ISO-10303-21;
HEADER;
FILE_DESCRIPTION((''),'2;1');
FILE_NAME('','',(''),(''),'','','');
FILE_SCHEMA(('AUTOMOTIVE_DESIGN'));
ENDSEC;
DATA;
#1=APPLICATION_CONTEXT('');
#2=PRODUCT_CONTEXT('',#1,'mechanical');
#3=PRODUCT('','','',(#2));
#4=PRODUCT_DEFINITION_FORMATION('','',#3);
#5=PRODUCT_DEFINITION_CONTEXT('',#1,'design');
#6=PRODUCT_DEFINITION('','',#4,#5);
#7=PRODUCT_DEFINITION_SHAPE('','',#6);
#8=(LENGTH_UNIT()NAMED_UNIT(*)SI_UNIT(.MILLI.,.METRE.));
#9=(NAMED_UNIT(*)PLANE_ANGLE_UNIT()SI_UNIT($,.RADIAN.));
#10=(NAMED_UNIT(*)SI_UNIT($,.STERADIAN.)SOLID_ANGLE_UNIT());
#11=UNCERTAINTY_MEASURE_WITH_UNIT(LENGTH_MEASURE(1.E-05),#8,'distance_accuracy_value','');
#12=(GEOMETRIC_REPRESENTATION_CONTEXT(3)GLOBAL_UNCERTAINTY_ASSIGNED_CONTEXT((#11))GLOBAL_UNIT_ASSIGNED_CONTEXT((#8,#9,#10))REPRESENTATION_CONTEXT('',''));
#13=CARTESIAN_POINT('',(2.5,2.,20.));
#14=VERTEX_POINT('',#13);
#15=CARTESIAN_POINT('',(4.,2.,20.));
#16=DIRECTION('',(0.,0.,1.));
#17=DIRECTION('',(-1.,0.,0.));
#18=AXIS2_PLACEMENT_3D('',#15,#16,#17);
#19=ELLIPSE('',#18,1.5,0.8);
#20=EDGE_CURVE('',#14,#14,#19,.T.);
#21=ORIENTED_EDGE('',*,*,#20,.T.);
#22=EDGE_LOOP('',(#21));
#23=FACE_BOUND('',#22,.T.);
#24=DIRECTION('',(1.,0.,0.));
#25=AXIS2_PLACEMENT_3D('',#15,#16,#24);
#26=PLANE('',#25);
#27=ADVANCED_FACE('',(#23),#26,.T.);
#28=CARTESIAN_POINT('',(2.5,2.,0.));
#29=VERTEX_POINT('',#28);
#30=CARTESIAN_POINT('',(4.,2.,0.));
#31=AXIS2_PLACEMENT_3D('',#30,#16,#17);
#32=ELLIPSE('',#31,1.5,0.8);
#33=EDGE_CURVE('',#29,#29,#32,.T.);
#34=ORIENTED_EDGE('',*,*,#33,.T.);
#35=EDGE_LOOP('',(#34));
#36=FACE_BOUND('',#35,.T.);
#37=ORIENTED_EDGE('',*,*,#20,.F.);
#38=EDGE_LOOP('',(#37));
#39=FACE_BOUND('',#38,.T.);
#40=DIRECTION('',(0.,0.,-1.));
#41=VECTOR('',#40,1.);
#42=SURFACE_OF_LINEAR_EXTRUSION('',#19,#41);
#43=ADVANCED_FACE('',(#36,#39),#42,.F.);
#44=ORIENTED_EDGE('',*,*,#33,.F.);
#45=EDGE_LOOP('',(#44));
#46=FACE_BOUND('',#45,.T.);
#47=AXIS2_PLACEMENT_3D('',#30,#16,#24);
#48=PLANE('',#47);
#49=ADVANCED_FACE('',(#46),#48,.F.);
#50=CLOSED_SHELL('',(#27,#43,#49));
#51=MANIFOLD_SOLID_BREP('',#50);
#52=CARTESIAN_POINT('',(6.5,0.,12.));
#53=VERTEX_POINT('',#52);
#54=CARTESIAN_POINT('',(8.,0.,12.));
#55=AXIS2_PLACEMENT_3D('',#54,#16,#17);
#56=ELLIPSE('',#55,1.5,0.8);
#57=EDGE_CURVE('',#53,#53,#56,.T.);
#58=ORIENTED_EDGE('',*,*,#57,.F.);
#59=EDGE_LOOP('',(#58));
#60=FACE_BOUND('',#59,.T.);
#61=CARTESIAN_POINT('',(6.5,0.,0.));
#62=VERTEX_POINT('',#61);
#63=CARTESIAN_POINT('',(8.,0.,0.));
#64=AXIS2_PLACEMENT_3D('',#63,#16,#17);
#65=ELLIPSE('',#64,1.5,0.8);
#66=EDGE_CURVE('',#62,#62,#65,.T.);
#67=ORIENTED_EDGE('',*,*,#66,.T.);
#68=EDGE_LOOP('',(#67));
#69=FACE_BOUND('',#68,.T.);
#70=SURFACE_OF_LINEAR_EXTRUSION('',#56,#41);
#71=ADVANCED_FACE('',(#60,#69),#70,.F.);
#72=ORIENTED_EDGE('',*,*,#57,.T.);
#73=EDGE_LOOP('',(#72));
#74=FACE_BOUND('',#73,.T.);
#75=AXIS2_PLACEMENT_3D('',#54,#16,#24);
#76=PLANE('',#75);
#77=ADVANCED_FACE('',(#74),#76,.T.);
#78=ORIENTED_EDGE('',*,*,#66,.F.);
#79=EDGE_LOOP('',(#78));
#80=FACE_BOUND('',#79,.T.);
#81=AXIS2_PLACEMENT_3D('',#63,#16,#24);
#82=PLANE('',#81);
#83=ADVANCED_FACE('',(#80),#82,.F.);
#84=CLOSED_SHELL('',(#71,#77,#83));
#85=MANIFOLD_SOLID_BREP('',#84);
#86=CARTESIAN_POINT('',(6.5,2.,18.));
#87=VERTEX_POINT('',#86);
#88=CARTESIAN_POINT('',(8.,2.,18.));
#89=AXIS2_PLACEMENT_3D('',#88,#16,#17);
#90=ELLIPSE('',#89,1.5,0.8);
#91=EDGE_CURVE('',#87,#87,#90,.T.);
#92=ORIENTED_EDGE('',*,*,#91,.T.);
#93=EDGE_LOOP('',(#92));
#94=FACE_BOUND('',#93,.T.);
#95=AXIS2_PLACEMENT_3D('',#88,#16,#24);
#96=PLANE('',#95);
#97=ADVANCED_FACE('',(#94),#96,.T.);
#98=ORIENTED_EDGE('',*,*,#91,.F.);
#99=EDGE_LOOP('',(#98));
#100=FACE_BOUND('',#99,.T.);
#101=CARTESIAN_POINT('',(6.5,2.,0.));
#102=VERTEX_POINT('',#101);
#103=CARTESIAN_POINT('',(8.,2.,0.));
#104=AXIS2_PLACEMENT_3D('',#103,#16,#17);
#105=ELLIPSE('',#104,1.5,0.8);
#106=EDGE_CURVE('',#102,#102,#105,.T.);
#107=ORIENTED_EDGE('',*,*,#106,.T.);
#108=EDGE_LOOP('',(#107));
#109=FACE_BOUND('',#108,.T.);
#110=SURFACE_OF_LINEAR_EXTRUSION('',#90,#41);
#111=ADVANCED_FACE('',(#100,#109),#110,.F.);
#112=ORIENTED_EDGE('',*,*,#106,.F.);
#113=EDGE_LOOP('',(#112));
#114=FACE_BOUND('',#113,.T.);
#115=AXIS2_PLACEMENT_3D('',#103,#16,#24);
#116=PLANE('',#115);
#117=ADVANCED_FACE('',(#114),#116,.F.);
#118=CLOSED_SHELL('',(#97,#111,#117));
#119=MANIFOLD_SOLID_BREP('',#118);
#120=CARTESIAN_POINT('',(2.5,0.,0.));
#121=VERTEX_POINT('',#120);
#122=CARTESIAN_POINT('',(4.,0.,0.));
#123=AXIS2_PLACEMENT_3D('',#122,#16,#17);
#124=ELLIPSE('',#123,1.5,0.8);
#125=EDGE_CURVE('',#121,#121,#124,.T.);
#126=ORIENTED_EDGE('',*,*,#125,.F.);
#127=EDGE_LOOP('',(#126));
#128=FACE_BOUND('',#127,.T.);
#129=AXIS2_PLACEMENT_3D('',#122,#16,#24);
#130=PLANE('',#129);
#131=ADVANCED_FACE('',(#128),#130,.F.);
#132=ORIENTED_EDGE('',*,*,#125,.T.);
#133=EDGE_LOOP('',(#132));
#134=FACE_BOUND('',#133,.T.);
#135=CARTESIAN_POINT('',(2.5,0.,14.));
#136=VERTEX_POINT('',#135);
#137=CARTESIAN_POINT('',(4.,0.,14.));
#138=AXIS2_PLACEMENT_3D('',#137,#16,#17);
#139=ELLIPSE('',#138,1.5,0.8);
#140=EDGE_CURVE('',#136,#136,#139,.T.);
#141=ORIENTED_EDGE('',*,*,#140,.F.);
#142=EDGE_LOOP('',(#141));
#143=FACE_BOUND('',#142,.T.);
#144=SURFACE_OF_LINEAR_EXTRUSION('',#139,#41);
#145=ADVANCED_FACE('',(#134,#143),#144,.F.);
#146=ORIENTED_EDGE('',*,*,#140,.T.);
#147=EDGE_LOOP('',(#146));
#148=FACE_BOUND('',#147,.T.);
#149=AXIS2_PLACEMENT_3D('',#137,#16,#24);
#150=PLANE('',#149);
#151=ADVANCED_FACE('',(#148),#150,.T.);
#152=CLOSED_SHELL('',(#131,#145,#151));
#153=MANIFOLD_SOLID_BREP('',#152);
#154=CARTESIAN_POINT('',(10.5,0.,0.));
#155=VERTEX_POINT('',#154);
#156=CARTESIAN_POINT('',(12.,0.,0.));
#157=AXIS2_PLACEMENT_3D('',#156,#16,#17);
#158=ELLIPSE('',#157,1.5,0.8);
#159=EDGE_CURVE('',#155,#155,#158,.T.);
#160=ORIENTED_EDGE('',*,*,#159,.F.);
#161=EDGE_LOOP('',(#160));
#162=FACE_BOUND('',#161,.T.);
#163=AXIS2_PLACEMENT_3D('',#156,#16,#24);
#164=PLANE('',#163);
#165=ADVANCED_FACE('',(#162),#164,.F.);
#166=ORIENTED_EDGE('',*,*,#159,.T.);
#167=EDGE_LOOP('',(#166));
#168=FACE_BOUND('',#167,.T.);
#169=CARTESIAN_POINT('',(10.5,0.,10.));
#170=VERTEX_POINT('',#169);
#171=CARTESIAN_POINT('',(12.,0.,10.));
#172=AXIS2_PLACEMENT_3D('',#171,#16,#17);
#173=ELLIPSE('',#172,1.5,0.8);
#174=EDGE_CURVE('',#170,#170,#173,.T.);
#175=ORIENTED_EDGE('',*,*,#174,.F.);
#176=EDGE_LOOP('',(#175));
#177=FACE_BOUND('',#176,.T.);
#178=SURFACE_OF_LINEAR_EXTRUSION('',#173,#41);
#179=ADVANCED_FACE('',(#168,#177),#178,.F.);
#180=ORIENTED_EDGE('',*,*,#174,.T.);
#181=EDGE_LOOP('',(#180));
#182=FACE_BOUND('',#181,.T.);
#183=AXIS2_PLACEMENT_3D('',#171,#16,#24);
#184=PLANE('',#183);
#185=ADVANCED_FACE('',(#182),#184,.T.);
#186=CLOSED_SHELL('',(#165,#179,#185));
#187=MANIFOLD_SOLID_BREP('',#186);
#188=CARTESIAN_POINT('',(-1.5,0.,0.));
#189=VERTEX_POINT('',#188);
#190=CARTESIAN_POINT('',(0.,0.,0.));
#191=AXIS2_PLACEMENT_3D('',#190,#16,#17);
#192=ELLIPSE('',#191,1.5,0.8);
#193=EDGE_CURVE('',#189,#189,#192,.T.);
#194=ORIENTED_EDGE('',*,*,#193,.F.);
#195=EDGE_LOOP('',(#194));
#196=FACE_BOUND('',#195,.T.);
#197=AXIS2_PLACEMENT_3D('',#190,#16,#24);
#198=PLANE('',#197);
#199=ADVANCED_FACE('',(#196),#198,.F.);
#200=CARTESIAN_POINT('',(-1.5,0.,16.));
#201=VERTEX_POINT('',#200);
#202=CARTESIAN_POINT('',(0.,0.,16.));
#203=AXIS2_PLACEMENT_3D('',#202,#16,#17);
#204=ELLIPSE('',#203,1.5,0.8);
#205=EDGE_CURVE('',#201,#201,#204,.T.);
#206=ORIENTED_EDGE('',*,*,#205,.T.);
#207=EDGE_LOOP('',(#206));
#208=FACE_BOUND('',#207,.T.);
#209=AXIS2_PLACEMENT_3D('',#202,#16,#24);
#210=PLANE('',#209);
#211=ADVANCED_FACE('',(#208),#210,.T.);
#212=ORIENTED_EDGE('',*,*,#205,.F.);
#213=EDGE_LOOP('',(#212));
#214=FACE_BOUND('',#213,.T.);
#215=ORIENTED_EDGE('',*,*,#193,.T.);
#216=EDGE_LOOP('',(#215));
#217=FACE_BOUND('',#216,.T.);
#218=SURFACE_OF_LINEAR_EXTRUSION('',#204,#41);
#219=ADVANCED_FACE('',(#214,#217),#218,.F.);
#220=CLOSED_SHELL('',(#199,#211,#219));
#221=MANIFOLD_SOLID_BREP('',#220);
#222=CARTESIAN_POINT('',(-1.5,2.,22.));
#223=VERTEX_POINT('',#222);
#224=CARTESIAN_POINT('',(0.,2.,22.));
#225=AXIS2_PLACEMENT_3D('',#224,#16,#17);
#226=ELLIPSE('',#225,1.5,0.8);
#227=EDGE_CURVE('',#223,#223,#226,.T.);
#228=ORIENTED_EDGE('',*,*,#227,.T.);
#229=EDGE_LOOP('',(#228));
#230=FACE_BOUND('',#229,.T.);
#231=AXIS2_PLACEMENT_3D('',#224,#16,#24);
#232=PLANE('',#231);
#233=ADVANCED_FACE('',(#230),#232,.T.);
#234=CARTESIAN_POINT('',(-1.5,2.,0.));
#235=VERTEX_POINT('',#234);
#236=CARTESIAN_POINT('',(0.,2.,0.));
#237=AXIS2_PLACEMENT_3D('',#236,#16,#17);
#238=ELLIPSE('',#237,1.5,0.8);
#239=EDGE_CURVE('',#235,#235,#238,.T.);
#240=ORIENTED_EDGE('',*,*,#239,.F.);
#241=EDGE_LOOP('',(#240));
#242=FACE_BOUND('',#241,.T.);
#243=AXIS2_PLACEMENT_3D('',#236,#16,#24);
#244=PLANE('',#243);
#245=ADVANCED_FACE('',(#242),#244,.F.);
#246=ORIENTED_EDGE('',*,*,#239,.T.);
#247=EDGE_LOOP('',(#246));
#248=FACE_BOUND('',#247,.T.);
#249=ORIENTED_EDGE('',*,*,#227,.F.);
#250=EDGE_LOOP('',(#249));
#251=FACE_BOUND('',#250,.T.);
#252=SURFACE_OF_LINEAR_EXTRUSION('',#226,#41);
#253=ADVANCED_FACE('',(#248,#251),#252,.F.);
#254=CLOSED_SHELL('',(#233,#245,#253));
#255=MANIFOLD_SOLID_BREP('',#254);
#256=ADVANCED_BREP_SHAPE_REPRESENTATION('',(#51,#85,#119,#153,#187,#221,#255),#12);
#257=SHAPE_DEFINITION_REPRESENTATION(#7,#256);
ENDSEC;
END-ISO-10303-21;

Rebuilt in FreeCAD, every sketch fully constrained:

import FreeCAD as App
import Part
import Sketcher

V = App.Vector

doc = App.newDocument("Part")
body = doc.addObject("PartDesign::Body", "Body")

# Sketch on XY plane
sketch1 = body.newObject("Sketcher::SketchObject", "Sketch")
sketch1.AttachmentSupport = (doc.getObject("XY_Plane"), [""])
sketch1.MapMode = "FlatFace"
sketch1.addGeometry(Part.Ellipse(V(10.5, 0, 0), V(12, -0.8, 0), V(12, 0, 0)), False)
sketch1.addConstraint(Sketcher.Constraint("Block", 0))
pad1 = body.newObject("PartDesign::Pad", "Pad")
pad1.Profile = sketch1
pad1.Length = 10
body2 = doc.addObject("PartDesign::Body", "Body001")

# Sketch on XY plane
sketch2 = body2.newObject("Sketcher::SketchObject", "Sketch001")
sketch2.AttachmentSupport = (doc.getObject("XY_Plane001"), [""])
sketch2.MapMode = "FlatFace"
sketch2.addGeometry(Part.Ellipse(V(6.5, 0, 0), V(8, -0.8, 0), V(8, 0, 0)), False)
sketch2.addConstraint(Sketcher.Constraint("Block", 0))
pad2 = body2.newObject("PartDesign::Pad", "Pad001")
pad2.Profile = sketch2
pad2.Length = 12
body3 = doc.addObject("PartDesign::Body", "Body002")

# Sketch on XY plane
sketch3 = body3.newObject("Sketcher::SketchObject", "Sketch002")
sketch3.AttachmentSupport = (doc.getObject("XY_Plane002"), [""])
sketch3.MapMode = "FlatFace"
sketch3.addGeometry(Part.Ellipse(V(2.5, 0, 0), V(4, -0.8, 0), V(4, 0, 0)), False)
sketch3.addConstraint(Sketcher.Constraint("Block", 0))
pad3 = body3.newObject("PartDesign::Pad", "Pad002")
pad3.Profile = sketch3
pad3.Length = 14
body4 = doc.addObject("PartDesign::Body", "Body003")

# Sketch on XY plane
sketch4 = body4.newObject("Sketcher::SketchObject", "Sketch003")
sketch4.AttachmentSupport = (doc.getObject("XY_Plane003"), [""])
sketch4.MapMode = "FlatFace"
sketch4.addGeometry(Part.Ellipse(V(-1.5, 0, 0), V(0, -0.8, 0), V(0, 0, 0)), False)
sketch4.addConstraint(Sketcher.Constraint("Block", 0))
pad4 = body4.newObject("PartDesign::Pad", "Pad003")
pad4.Profile = sketch4
pad4.Length = 16
body5 = doc.addObject("PartDesign::Body", "Body004")

# Sketch on XY plane
sketch5 = body5.newObject("Sketcher::SketchObject", "Sketch004")
sketch5.AttachmentSupport = (doc.getObject("XY_Plane004"), [""])
sketch5.MapMode = "FlatFace"
sketch5.addGeometry(Part.Ellipse(V(6.5, 2, 0), V(8, 1.2, 0), V(8, 2, 0)), False)
sketch5.addConstraint(Sketcher.Constraint("Block", 0))
pad5 = body5.newObject("PartDesign::Pad", "Pad004")
pad5.Profile = sketch5
pad5.Length = 18
body6 = doc.addObject("PartDesign::Body", "Body005")

# Sketch on XY plane
sketch6 = body6.newObject("Sketcher::SketchObject", "Sketch005")
sketch6.AttachmentSupport = (doc.getObject("XY_Plane005"), [""])
sketch6.MapMode = "FlatFace"
sketch6.addGeometry(Part.Ellipse(V(2.5, 2, 0), V(4, 1.2, 0), V(4, 2, 0)), False)
sketch6.addConstraint(Sketcher.Constraint("Block", 0))
pad6 = body6.newObject("PartDesign::Pad", "Pad005")
pad6.Profile = sketch6
pad6.Length = 20
body7 = doc.addObject("PartDesign::Body", "Body006")

# Sketch on XY plane
sketch7 = body7.newObject("Sketcher::SketchObject", "Sketch006")
sketch7.AttachmentSupport = (doc.getObject("XY_Plane006"), [""])
sketch7.MapMode = "FlatFace"
sketch7.addGeometry(Part.Ellipse(V(-1.5, 2, 0), V(0, 1.2, 0), V(0, 2, 0)), False)
sketch7.addConstraint(Sketcher.Constraint("Block", 0))
pad7 = body7.newObject("PartDesign::Pad", "Pad006")
pad7.Profile = sketch7
pad7.Length = 22

doc.recompute()
